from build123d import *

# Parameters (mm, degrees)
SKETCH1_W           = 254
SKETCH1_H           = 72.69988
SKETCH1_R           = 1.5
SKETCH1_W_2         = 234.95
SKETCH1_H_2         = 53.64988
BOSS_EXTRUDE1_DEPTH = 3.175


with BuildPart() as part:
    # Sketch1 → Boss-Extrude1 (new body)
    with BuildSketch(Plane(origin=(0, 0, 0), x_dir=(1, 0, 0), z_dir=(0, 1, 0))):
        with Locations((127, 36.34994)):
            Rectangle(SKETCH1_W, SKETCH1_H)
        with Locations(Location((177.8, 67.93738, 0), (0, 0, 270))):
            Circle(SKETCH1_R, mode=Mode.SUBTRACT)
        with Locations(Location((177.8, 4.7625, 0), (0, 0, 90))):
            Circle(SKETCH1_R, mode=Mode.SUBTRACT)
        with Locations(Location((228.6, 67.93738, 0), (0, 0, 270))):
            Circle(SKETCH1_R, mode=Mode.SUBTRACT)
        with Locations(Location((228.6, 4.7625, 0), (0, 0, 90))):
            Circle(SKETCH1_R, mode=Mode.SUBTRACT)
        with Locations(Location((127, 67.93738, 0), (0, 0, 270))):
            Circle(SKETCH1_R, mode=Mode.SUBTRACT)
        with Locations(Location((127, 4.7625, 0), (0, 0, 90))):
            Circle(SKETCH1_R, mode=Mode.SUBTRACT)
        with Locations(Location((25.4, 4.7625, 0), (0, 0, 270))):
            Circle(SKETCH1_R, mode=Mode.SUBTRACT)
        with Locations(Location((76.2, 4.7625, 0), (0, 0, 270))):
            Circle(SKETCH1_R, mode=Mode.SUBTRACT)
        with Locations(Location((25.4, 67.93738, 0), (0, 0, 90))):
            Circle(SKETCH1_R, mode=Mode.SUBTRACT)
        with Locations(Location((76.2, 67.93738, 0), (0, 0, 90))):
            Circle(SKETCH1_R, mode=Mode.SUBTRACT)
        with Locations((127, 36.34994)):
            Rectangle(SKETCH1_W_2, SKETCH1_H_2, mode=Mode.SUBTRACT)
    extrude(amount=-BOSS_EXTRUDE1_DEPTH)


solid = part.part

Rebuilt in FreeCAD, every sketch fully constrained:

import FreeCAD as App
import Part
import Sketcher
Q = App.Units.Quantity

doc = App.newDocument("Part")
body = doc.addObject("PartDesign::Body", "Body")

sketch1 = doc.addObject("Sketcher::SketchObject", "Sketch")
body.addObject(sketch1)
sketch1.AttachmentSupport = (doc.XZ_Plane, [""])
sketch1.MapMode = "FlatFace"
sketch1.addGeometry(Part.LineSegment(App.Vector(0, -72.7, 0), App.Vector(0, 0, 0)), False)
sketch1.addGeometry(Part.LineSegment(App.Vector(0, 0, 0), App.Vector(254, 0, 0)), False)
sketch1.addGeometry(Part.LineSegment(App.Vector(254, 0, 0), App.Vector(254, -72.7, 0)), False)
sketch1.addGeometry(Part.LineSegment(App.Vector(254, -72.7, 0), App.Vector(0, -72.7, 0)), False)
sketch1.addGeometry(Part.Circle(App.Vector(25.4, -4.8, 0), App.Vector(0, 0, 1), 1.5), False)
sketch1.addGeometry(Part.Circle(App.Vector(76.2, -4.8, 0), App.Vector(0, 0, 1), 1.5), False)
sketch1.addGeometry(Part.Circle(App.Vector(127, -4.8, 0), App.Vector(0, 0, 1), 1.5), False)
sketch1.addGeometry(Part.Circle(App.Vector(177.8, -4.8, 0), App.Vector(0, 0, 1), 1.5), False)
sketch1.addGeometry(Part.Circle(App.Vector(228.6, -4.8, 0), App.Vector(0, 0, 1), 1.5), False)
sketch1.addGeometry(Part.Circle(App.Vector(25.4, -67.9, 0), App.Vector(0, 0, 1), 1.5), False)
sketch1.addGeometry(Part.Circle(App.Vector(76.2, -67.9, 0), App.Vector(0, 0, 1), 1.5), False)
sketch1.addGeometry(Part.LineSegment(App.Vector(244.5, -9.5, 0), App.Vector(9.5, -9.5, 0)), False)
sketch1.addGeometry(Part.LineSegment(App.Vector(9.5, -9.5, 0), App.Vector(9.5, -63.2, 0)), False)
sketch1.addGeometry(Part.LineSegment(App.Vector(9.5, -63.2, 0), App.Vector(244.5, -63.2, 0)), False)
sketch1.addGeometry(Part.LineSegment(App.Vector(244.5, -63.2, 0), App.Vector(244.5, -9.5, 0)), False)
sketch1.addGeometry(Part.Circle(App.Vector(127, -67.9, 0), App.Vector(0, 0, 1), 1.5), False)
sketch1.addGeometry(Part.Circle(App.Vector(177.8, -67.9, 0), App.Vector(0, 0, 1), 1.5), False)
sketch1.addGeometry(Part.Circle(App.Vector(228.6, -67.9, 0), App.Vector(0, 0, 1), 1.5), False)
sketch1.addConstraint(Sketcher.Constraint("Coincident", 0, 2, 1, 1))
sketch1.addConstraint(Sketcher.Constraint("Coincident", 1, 2, 2, 1))
sketch1.addConstraint(Sketcher.Constraint("Coincident", 2, 2, 3, 1))
sketch1.addConstraint(Sketcher.Constraint("Coincident", 3, 2, 0, 1))
sketch1.addConstraint(Sketcher.Constraint("Coincident", 11, 2, 12, 1))
sketch1.addConstraint(Sketcher.Constraint("Coincident", 12, 2, 13, 1))
sketch1.addConstraint(Sketcher.Constraint("Coincident", 13, 2, 14, 1))
sketch1.addConstraint(Sketcher.Constraint("Coincident", 14, 2, 11, 1))
sketch1.addConstraint(Sketcher.Constraint("Vertical", 0))
sketch1.addConstraint(Sketcher.Constraint("Horizontal", 1))
sketch1.addConstraint(Sketcher.Constraint("Vertical", 2))
sketch1.addConstraint(Sketcher.Constraint("Horizontal", 3))
sketch1.addConstraint(Sketcher.Constraint("Horizontal", 11))
sketch1.addConstraint(Sketcher.Constraint("Vertical", 12))
sketch1.addConstraint(Sketcher.Constraint("Horizontal", 13))
sketch1.addConstraint(Sketcher.Constraint("Vertical", 14))
sketch1.addConstraint(Sketcher.Constraint("Coincident", 0, 2, -1, 1))
sketch1.addConstraint(Sketcher.Constraint("Equal", 4, 5))
sketch1.addConstraint(Sketcher.Constraint("Equal", 5, 6))
sketch1.addConstraint(Sketcher.Constraint("Equal", 6, 7))
sketch1.addConstraint(Sketcher.Constraint("Equal", 7, 8))
sketch1.addConstraint(Sketcher.Constraint("Equal", 8, 9))
sketch1.addConstraint(Sketcher.Constraint("Equal", 9, 10))
sketch1.addConstraint(Sketcher.Constraint("Equal", 10, 15))
sketch1.addConstraint(Sketcher.Constraint("Equal", 15, 16))
sketch1.addConstraint(Sketcher.Constraint("Equal", 16, 17))
sketch1.addConstraint(Sketcher.Constraint("Horizontal", 4, 3, 5, 3))
sketch1.addConstraint(Sketcher.Constraint("Horizontal", 5, 3, 6, 3))
sketch1.addConstraint(Sketcher.Constraint("Horizontal", 6, 3, 7, 3))
sketch1.addConstraint(Sketcher.Constraint("Horizontal", 7, 3, 8, 3))
sketch1.addConstraint(Sketcher.Constraint("Horizontal", 9, 3, 10, 3))
sketch1.addConstraint(Sketcher.Constraint("Horizontal", 10, 3, 15, 3))
sketch1.addConstraint(Sketcher.Constraint("Horizontal", 15, 3, 16, 3))
sketch1.addConstraint(Sketcher.Constraint("Horizontal", 16, 3, 17, 3))
sketch1.addConstraint(Sketcher.Constraint("Vertical", 4, 3, 9, 3))
sketch1.addConstraint(Sketcher.Constraint("Vertical", 5, 3, 10, 3))
sketch1.addConstraint(Sketcher.Constraint("Vertical", 6, 3, 15, 3))
sketch1.addConstraint(Sketcher.Constraint("Vertical", 7, 3, 16, 3))
sketch1.addConstraint(Sketcher.Constraint("Vertical", 8, 3, 17, 3))
sketch1.addConstraint(Sketcher.Constraint("DistanceX", 1, 1, 1, 2, Q("10 in")))
sketch1.addConstraint(Sketcher.Constraint("DistanceX", -1, 1, 4, 3, Q("1 in")))
sketch1.addConstraint(Sketcher.Constraint("DistanceX", -1, 1, 5, 3, Q("3 in")))
sketch1.addConstraint(Sketcher.Constraint("DistanceX", -1, 1, 6, 3, Q("5 in")))
sketch1.addConstraint(Sketcher.Constraint("DistanceX", -1, 1, 7, 3, Q("7 in")))
sketch1.addConstraint(Sketcher.Constraint("DistanceX", -1, 1, 8, 3, Q("9 in")))
sketch1.addConstraint(Sketcher.Constraint("DistanceX", 11, 2, 11, 1, Q("9.25 in")))
sketch1.addConstraint(Sketcher.Constraint("Diameter", 4, Q("3 mm")))
sketch1.addConstraint(Sketcher.Constraint("DistanceY", 0, 1, 0, 2, Q("2.8622 in")))
sketch1.addConstraint(Sketcher.Constraint("DistanceY", 12, 2, 12, 1, Q("2.1122 in")))
sketch1.addConstraint(Sketcher.Constraint("DistanceY", 4, 3, -1, 1, Q("0.1875 in")))
sketch1.addConstraint(Sketcher.Constraint("DistanceX", -1, 1, 11, 2, Q("0.375 in")))
sketch1.addConstraint(Sketcher.Constraint("DistanceY", 11, 2, -1, 1, Q("0.375 in")))
sketch1.addConstraint(Sketcher.Constraint("DistanceY", 2, 2, 17, 3, Q("0.1875 in")))
pad1 = doc.addObject("PartDesign::Pad", "Pad")
body.addObject(pad1)
pad1.Profile = sketch1
pad1.Length = Q("0.125 in")

doc.recompute()
